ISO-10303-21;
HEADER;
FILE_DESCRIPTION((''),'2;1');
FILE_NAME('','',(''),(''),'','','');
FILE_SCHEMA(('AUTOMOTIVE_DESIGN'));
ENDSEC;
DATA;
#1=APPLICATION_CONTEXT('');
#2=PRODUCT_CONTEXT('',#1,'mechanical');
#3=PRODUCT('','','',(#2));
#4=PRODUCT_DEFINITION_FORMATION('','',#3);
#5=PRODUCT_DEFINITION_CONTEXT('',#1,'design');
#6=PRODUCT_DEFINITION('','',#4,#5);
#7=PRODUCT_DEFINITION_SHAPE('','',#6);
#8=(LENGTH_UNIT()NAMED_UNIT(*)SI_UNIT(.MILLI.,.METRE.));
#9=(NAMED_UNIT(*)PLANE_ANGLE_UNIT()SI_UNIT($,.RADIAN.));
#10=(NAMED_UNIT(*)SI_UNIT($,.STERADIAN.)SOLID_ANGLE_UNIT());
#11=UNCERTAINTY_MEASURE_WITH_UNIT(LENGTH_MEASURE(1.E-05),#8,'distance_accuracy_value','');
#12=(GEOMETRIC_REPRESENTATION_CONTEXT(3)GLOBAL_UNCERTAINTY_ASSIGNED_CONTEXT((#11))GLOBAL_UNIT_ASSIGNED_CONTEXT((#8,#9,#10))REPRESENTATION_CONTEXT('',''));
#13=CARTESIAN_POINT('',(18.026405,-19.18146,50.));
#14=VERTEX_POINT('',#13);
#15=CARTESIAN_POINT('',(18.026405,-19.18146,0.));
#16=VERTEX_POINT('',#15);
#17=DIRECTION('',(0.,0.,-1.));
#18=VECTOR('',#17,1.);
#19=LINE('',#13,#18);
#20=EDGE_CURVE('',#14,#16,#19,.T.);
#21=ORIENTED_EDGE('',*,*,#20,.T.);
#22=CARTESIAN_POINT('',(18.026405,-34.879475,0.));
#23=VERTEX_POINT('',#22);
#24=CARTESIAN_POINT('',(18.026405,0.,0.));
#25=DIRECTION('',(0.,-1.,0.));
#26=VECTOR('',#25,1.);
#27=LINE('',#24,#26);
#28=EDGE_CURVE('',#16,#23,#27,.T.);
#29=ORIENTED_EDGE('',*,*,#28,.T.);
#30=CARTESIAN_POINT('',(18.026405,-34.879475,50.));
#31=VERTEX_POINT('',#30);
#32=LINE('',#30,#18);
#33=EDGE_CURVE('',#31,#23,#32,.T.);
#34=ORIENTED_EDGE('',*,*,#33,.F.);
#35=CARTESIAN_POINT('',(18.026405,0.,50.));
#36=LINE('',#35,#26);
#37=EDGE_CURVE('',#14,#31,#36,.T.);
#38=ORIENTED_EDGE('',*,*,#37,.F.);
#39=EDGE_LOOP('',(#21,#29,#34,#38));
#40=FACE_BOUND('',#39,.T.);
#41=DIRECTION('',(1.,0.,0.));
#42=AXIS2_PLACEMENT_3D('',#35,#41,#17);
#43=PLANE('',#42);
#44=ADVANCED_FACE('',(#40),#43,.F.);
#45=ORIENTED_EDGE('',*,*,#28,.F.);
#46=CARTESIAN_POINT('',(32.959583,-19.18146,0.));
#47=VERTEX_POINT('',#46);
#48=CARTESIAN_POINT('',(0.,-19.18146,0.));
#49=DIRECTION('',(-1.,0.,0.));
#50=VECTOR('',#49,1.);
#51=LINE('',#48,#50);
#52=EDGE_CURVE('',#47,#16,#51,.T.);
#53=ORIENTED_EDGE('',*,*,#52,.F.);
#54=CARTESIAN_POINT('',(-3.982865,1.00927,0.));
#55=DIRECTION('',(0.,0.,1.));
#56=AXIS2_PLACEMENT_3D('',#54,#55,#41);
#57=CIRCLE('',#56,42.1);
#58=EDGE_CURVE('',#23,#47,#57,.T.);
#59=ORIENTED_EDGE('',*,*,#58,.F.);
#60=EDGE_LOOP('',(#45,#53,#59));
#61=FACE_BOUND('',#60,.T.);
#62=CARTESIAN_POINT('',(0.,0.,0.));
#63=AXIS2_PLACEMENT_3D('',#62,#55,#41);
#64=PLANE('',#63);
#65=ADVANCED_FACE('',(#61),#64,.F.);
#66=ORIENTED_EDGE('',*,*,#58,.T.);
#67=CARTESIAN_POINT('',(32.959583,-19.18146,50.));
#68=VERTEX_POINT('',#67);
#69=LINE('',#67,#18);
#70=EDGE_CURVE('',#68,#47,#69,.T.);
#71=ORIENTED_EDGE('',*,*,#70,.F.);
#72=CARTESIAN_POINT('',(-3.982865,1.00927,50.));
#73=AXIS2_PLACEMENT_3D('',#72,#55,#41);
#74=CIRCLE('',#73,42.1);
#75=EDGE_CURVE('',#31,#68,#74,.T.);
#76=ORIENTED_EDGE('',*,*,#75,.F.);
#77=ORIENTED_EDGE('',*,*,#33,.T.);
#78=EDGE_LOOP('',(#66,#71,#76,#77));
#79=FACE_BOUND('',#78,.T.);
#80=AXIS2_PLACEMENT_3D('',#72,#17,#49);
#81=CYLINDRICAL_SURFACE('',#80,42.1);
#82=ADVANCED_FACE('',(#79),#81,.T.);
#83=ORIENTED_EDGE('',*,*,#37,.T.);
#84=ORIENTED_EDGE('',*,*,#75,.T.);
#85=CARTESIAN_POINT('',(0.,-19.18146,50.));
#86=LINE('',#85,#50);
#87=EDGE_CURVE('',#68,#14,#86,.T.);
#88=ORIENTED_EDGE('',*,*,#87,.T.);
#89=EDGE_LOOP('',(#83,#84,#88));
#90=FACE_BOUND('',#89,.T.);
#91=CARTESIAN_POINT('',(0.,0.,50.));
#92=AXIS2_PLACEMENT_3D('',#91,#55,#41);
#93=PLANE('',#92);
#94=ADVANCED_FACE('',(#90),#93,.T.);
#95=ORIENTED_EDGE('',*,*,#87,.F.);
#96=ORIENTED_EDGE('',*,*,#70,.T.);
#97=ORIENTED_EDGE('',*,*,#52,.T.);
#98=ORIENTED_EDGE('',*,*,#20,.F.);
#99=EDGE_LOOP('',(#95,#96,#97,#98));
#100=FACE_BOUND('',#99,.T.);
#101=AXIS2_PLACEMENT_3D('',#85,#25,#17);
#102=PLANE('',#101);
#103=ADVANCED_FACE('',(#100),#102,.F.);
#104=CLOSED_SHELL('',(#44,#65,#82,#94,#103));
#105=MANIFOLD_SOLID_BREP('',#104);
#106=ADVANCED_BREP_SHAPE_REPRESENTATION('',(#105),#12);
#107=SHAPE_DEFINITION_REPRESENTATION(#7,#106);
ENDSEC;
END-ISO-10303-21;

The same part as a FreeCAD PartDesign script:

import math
import FreeCAD as App
import Part
import Sketcher

doc = App.newDocument("Part")
body = doc.addObject("PartDesign::Body", "Body")

# Sketch on XY plane
sketch1 = doc.addObject("Sketcher::SketchObject", "Sketch")
body.addObject(sketch1)
sketch1.AttachmentSupport = (doc.XY_Plane, [""])
sketch1.MapMode = "FlatFace"
sketch1.addGeometry([
    Part.LineSegment(App.Vector(33, -19, 0), App.Vector(18, -19, 0)),
    Part.LineSegment(App.Vector(18, -19, 0), App.Vector(18, -35, 0)),
    Part.ArcOfCircle(Part.Circle(App.Vector(-4, 1, 0), App.Vector(0, 0, 1), 42), math.radians(-58), math.radians(-29)),
], False)
sketch1.addConstraint([
    Sketcher.Constraint("Coincident", 0, 2, 1, 1),
    Sketcher.Constraint("Coincident", 1, 2, 2, 1),
    Sketcher.Constraint("Coincident", 2, 2, 0, 1),
    Sketcher.Constraint("Horizontal", 0),
    Sketcher.Constraint("Vertical", 1),
    Sketcher.Constraint("Radius", 2, 42.1),
    Sketcher.Constraint("DistanceX", 0, 2, 0, 1, 14.933177),
    Sketcher.Constraint("DistanceY", 1, 2, 1, 1, 15.698015),
    Sketcher.Constraint("DistanceY", -1, 1, 2, 3, 1.00927),
    Sketcher.Constraint("DistanceX", 2, 3, -1, 1, 3.982865),
])
pad1 = doc.addObject("PartDesign::Pad", "Pad")
body.addObject(pad1)
pad1.Profile = sketch1
pad1.Length = 50

doc.recompute()
